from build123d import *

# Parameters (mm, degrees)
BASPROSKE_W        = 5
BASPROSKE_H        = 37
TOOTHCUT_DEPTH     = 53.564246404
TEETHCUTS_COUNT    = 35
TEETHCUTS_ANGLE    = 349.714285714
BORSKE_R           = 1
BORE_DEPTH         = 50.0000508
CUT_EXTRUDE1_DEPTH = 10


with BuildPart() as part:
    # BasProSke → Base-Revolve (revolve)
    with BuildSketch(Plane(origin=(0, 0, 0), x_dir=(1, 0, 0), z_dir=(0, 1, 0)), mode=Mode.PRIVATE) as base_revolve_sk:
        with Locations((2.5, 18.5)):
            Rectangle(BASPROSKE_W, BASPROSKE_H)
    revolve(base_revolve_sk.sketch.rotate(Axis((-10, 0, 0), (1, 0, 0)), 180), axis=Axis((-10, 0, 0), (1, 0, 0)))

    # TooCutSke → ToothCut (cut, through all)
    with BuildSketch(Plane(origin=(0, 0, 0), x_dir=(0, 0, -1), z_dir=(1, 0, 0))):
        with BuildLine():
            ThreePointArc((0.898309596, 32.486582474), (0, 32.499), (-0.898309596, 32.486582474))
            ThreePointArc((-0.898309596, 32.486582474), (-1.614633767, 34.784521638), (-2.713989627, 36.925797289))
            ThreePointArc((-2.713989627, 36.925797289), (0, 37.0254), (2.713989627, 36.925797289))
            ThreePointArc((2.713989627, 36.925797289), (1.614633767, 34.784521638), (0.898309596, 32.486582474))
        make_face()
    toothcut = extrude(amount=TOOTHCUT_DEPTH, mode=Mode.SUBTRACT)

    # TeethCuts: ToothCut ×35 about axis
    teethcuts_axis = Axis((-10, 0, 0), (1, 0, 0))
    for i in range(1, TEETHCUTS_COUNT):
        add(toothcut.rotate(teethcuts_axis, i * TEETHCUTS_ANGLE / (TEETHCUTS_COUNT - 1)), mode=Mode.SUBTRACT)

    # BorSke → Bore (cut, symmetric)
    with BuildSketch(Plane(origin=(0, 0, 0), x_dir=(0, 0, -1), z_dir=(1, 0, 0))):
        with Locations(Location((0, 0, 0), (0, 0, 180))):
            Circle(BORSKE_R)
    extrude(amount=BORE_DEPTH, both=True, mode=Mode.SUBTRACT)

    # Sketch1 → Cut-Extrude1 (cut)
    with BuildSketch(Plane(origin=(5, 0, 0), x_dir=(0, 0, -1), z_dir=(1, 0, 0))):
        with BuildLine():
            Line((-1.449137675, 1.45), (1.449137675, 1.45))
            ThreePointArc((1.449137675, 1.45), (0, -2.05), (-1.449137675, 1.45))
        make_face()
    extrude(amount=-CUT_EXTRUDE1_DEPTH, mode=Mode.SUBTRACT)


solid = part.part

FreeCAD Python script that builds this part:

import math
import FreeCAD as App
import Part
import Sketcher
from FreeCAD import Vector
Q = App.Units.Quantity


def add_polygon(sketch, points):
    """Adds a closed chain of lines whose ends are joined by coincident constraints."""
    first, n = sketch.GeometryCount, len(points)
    for a, b in zip(points, points[1:] + points[:1]):
        sketch.addGeometry(Part.LineSegment(App.Vector(*a, 0), App.Vector(*b, 0)), False)
    for i in range(n):
        sketch.addConstraint(Sketcher.Constraint("Coincident", first + i, 2, first + (i + 1) % n, 1))

doc = App.newDocument("Part")
body = doc.addObject("PartDesign::Body", "Body")

# Sketch on XZ plane
sketch1 = doc.addObject("Sketcher::SketchObject", "Sketch")
body.addObject(sketch1)
sketch1.AttachmentSupport = (doc.XZ_Plane, [""])
sketch1.MapMode = "FlatFace"
add_polygon(sketch1, [(0, -37), (0, 0), (5, 0), (5, -37)])  # lines 0-3
sketch1.addConstraint(Sketcher.Constraint("Vertical", 0))
sketch1.addConstraint(Sketcher.Constraint("Horizontal", 1))
sketch1.addConstraint(Sketcher.Constraint("Vertical", 2))
sketch1.addConstraint(Sketcher.Constraint("Horizontal", 3))
sketch1.addConstraint(Sketcher.Constraint("Coincident", 0, 2, -1, 1))
sketch1.addConstraint(Sketcher.Constraint("DistanceX", 1, 1, 1, 2, Q("5 mm")))
sketch1.addConstraint(Sketcher.Constraint("DistanceY", 0, 1, 0, 2, Q("37 mm")))
revolution = doc.addObject("PartDesign::Revolution", "Revolution")
body.addObject(revolution)
revolution.Profile = sketch1
revolution.ReferenceAxis = (sketch1, ["H_Axis"])
revolution.Angle = 360

# Sketch on YZ plane
sketch2 = doc.addObject("Sketcher::SketchObject", "Sketch001")
body.addObject(sketch2)
sketch2.AttachmentSupport = (doc.YZ_Plane, [""])
sketch2.MapMode = "FlatFace"
sketch2.addGeometry(Part.ArcOfCircle(Part.Circle(Vector(0, 0, 0), Vector(0, 0, 1), 32.5), math.radians(-1.58), math.radians(1.58)), False)
sketch2.addGeometry(Part.ArcOfCircle(Part.Circle(Vector(29.5, -14.6, 0), Vector(0, 0, 1), 14), math.radians(57.89), math.radians(77.62)), False)
sketch2.addGeometry(Part.ArcOfCircle(Part.Circle(Vector(0, 0, 0), Vector(0, 0, 1), 37), math.radians(-4.2), math.radians(4.2)), False)
sketch2.addGeometry(Part.ArcOfCircle(Part.Circle(Vector(29.5, 14.6, 0), Vector(0, 0, 1), 14), math.radians(-77.62), math.radians(-57.89)), False)
sketch2.addConstraint(Sketcher.Constraint("Coincident", 0, 1, 1, 2))
sketch2.addConstraint(Sketcher.Constraint("Coincident", 1, 1, 2, 1))
sketch2.addConstraint(Sketcher.Constraint("Coincident", 2, 2, 3, 2))
sketch2.addConstraint(Sketcher.Constraint("Coincident", 3, 1, 0, 2))
sketch2.addConstraint(Sketcher.Constraint("Coincident", 0, 3, -1, 1))
sketch2.addConstraint(Sketcher.Constraint("Coincident", 2, 3, -1, 1))
sketch2.addConstraint(Sketcher.Constraint("Equal", 1, 3))
sketch2.addConstraint(Sketcher.Constraint("Symmetric", 1, 3, 3, 3, -1))
sketch2.addConstraint(Sketcher.Constraint("Radius", 1, Q("14 mm")))
sketch2.addConstraint(Sketcher.Constraint("Radius", 0, Q("32.498999 mm")))
sketch2.addConstraint(Sketcher.Constraint("Radius", 2, Q("37.0254 mm")))
sketch2.addConstraint(Sketcher.Constraint("DistanceY", 0, 1, 2, 2, Q("3.612299 mm")))
sketch2.addConstraint(Sketcher.Constraint("DistanceY", 1, 3, -1, 1, Q("14.572662 mm")))
pocket1 = doc.addObject("PartDesign::Pocket", "Pocket")
body.addObject(pocket1)
pocket1.Profile = sketch2
pocket1.Type = "ThroughAll"
pocket1.Reversed = True
doc.recompute()

polarpattern = doc.addObject("PartDesign::PolarPattern", "PolarPattern")
body.addObject(polarpattern)
polarpattern.Originals = [pocket1]
polarpattern.Axis = (doc.X_Axis, [""])
polarpattern.Angle = 360
polarpattern.Occurrences = 35
body.Tip = polarpattern

# Sketch on YZ plane
sketch3 = doc.addObject("Sketcher::SketchObject", "Sketch002")
body.addObject(sketch3)
sketch3.AttachmentSupport = (doc.YZ_Plane, [""])
sketch3.MapMode = "FlatFace"
sketch3.addGeometry(Part.Circle(Vector(0, 0, 0), Vector(0, 0, 1), 1), False)
sketch3.addConstraint(Sketcher.Constraint("Coincident", 0, 3, -1, 1))
sketch3.addConstraint(Sketcher.Constraint("Diameter", 0, Q("2 mm")))
pocket2 = doc.addObject("PartDesign::Pocket", "Pocket001")
body.addObject(pocket2)
pocket2.Profile = sketch3
pocket2.Length = 100.000102
pocket2.Midplane = True

# Sketch on YZ plane
sketch4 = doc.addObject("Sketcher::SketchObject", "Sketch003")
body.addObject(sketch4)
sketch4.AttachmentSupport = (doc.YZ_Plane, [""])
sketch4.MapMode = "FlatFace"
sketch4.AttachmentOffset = App.Placement(Vector(0, 0, 5), App.Rotation())
sketch4.addGeometry(Part.LineSegment(Vector(1.4, -1.4, 0), Vector(1.4, 1.4, 0)), False)
sketch4.addGeometry(Part.ArcOfCircle(Part.Circle(Vector(0, 0, 0), Vector(0, 0, 1), 2), math.radians(45), math.radians(315)), False)
sketch4.addConstraint(Sketcher.Constraint("Coincident", 0, 1, 1, 2))
sketch4.addConstraint(Sketcher.Constraint("Coincident", 1, 1, 0, 2))
sketch4.addConstraint(Sketcher.Constraint("Vertical", 0))
sketch4.addConstraint(Sketcher.Constraint("Coincident", 1, 3, -1, 1))
sketch4.addConstraint(Sketcher.Constraint("Radius", 1, Q("2.05 mm")))
sketch4.addConstraint(Sketcher.Constraint("DistanceX", -1, 1, 0, 1, Q("1.45 mm")))
pocket3 = doc.addObject("PartDesign::Pocket", "Pocket002")
body.addObject(pocket3)
pocket3.Profile = sketch4
pocket3.Length = 10

doc.recompute()
